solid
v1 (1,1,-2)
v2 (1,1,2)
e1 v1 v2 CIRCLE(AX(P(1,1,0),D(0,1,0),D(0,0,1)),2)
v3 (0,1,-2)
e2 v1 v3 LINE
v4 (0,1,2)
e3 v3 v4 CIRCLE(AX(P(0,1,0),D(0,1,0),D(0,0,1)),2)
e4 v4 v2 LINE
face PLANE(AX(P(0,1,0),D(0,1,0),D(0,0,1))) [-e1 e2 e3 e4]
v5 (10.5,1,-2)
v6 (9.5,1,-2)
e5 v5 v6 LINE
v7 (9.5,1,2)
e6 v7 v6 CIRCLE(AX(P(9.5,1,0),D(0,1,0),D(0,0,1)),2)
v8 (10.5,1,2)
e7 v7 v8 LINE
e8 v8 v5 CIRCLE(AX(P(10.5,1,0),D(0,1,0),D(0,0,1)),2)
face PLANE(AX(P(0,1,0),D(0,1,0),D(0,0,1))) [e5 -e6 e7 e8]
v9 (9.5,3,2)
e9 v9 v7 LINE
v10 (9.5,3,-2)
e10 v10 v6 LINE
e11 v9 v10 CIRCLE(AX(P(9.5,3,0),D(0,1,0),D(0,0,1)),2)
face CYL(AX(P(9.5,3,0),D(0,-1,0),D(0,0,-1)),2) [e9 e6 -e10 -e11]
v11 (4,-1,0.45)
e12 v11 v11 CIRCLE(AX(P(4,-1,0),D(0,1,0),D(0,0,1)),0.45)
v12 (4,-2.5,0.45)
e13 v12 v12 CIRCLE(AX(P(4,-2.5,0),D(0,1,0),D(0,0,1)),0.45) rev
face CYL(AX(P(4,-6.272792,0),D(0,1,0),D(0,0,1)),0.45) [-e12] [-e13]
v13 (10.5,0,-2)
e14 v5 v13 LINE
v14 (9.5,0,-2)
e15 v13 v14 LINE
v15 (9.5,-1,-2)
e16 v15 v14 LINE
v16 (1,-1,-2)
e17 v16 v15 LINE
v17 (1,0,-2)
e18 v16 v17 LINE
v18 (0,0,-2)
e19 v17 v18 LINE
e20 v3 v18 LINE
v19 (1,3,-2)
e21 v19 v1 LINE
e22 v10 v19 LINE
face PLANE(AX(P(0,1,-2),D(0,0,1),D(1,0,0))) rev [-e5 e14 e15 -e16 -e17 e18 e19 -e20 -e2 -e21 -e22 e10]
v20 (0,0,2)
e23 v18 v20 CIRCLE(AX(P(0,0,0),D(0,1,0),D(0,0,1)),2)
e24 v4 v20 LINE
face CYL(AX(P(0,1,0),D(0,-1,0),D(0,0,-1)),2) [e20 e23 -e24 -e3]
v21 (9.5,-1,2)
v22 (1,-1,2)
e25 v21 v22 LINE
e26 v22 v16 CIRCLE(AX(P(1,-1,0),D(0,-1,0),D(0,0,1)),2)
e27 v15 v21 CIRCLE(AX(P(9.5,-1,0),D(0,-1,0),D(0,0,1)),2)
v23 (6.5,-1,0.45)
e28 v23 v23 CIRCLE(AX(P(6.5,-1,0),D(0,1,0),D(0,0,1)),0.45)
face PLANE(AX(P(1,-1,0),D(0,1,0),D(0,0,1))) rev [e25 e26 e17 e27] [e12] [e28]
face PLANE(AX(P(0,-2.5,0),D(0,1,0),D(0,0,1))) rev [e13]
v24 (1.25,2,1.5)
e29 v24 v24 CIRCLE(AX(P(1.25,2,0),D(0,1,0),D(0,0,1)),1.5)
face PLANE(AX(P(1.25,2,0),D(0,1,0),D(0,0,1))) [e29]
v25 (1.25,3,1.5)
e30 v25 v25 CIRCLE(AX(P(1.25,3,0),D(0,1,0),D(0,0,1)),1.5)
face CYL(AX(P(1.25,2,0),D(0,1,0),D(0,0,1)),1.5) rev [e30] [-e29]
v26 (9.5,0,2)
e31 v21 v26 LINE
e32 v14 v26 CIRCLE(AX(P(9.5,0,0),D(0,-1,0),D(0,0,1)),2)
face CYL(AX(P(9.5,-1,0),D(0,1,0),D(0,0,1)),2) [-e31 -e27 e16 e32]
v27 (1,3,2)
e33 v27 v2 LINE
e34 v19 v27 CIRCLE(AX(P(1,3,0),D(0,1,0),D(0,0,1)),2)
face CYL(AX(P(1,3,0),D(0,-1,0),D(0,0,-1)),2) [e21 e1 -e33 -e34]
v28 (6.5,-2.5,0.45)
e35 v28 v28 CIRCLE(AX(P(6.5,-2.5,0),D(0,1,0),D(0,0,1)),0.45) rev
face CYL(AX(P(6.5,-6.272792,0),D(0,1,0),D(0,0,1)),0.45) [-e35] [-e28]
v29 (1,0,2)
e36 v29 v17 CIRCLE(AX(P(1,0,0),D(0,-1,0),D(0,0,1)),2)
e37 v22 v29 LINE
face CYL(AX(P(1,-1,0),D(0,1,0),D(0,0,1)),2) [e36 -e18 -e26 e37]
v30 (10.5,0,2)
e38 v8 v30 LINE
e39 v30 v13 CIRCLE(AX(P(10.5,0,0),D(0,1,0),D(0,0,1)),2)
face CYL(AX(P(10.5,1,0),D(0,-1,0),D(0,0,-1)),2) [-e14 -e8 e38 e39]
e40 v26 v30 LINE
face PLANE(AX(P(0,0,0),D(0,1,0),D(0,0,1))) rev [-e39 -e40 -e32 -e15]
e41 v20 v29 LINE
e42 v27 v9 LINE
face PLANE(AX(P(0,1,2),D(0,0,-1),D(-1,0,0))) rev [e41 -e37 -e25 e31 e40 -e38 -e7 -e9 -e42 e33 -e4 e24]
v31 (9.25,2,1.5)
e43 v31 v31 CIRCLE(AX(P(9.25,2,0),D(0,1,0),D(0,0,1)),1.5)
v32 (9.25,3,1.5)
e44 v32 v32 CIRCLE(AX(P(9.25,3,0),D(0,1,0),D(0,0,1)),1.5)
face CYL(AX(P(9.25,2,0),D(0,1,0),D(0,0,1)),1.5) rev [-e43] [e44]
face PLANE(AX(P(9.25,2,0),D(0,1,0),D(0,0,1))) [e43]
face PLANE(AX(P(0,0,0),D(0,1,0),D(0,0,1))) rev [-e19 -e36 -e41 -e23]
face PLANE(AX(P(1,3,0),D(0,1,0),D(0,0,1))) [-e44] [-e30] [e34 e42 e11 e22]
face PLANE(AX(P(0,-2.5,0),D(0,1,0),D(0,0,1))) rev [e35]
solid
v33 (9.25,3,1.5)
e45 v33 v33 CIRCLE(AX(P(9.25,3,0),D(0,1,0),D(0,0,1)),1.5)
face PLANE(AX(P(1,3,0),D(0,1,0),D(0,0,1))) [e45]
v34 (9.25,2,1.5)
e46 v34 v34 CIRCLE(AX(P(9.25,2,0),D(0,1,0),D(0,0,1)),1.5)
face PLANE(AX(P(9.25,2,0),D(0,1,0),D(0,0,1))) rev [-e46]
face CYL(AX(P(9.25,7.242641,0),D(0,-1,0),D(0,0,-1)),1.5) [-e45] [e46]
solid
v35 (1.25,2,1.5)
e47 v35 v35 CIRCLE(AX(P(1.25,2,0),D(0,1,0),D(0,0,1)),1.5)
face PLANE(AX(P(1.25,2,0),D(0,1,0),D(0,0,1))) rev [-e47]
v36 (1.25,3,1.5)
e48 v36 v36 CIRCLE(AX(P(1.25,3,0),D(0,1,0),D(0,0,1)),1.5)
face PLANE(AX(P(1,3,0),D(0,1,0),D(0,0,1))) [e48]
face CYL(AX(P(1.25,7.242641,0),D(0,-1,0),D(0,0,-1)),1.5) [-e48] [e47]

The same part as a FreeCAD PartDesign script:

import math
import FreeCAD as App
import Part
import Sketcher

V = App.Vector

doc = App.newDocument("Part")
body = doc.addObject("PartDesign::Body", "Body")

sketch1 = body.newObject("Sketcher::SketchObject", "Sketch")
sketch1.AttachmentSupport = (doc.getObject("XZ_Plane"), [""])
sketch1.MapMode = "FlatFace"
sketch1.addGeometry([
    Part.LineSegment(V(10.5, -2, 0), V(0, -2, 0)),
    Part.ArcOfCircle(Part.Circle(V(0, 0, 0), V(0, 0, 1), 2), math.radians(90), math.radians(270)),
    Part.LineSegment(V(0, 2, 0), V(10.5, 2, 0)),
    Part.ArcOfCircle(Part.Circle(V(10.5, 0, 0), V(0, 0, 1), 2), math.radians(-90), math.radians(90)),
], False)
sketch1.addConstraint([
    Sketcher.Constraint("Tangent", 0, 2, 1, 2),
    Sketcher.Constraint("Tangent", 1, 1, 2, 1),
    Sketcher.Constraint("Tangent", 2, 2, 3, 2),
    Sketcher.Constraint("Tangent", 3, 1, 0, 1),
    Sketcher.Constraint("Horizontal", 0),
    Sketcher.Constraint("Horizontal", 2),
    Sketcher.Constraint("Coincident", 1, 3, -1, 1),
    Sketcher.Constraint("Radius", 1, 2.0),
    Sketcher.Constraint("DistanceX", 0, 2, 0, 1, 10.5),
])
pad1 = body.newObject("PartDesign::Pad", "Pad")
pad1.Profile = sketch1
pad1.Length = 1
pad1.Reversed = True

sketch2 = body.newObject("Sketcher::SketchObject", "Sketch001")
sketch2.AttachmentSupport = (doc.getObject("XZ_Plane"), [""])
sketch2.MapMode = "FlatFace"
sketch2.AttachmentOffset = App.Placement(V(0, 0, -1), App.Rotation())
sketch2.addGeometry([
    Part.LineSegment(V(9.5, -2, 0), V(1, -2, 0)),
    Part.ArcOfCircle(Part.Circle(V(1, 0, 0), V(0, 0, 1), 2), math.radians(90), math.radians(270)),
    Part.LineSegment(V(1, 2, 0), V(9.5, 2, 0)),
    Part.ArcOfCircle(Part.Circle(V(9.5, 0, 0), V(0, 0, 1), 2), math.radians(-90), math.radians(90)),
], False)
sketch2.addConstraint([
    Sketcher.Constraint("Tangent", 0, 2, 1, 2),
    Sketcher.Constraint("Tangent", 1, 1, 2, 1),
    Sketcher.Constraint("Tangent", 2, 2, 3, 2),
    Sketcher.Constraint("Tangent", 3, 1, 0, 1),
    Sketcher.Constraint("Horizontal", 0),
    Sketcher.Constraint("Horizontal", 2),
    Sketcher.Constraint("PointOnObject", 1, 3, -1),
    Sketcher.Constraint("Radius", 1, 2.0),
    Sketcher.Constraint("DistanceX", 0, 2, 0, 1, 8.5),
    Sketcher.Constraint("DistanceX", -1, 1, 1, 3, 1.0),
])
pad2 = body.newObject("PartDesign::Pad", "Pad001")
pad2.Profile = sketch2
pad2.Length = 2
pad2.Reversed = True

sketch3 = body.newObject("Sketcher::SketchObject", "Sketch002")
sketch3.AttachmentSupport = (doc.getObject("XZ_Plane"), [""])
sketch3.MapMode = "FlatFace"
sketch3.AttachmentOffset = App.Placement(V(0, 0, -3), App.Rotation())
sketch3.addGeometry([
    Part.Circle(V(1.25, 0, 0), V(0, 0, 1), 1.5),
    Part.Circle(V(9.25, 0, 0), V(0, 0, 1), 1.5),
    Part.Circle(V(4, 0, 0), V(0, 0, 1), 0.45),
    Part.Circle(V(6.5, 0, 0), V(0, 0, 1), 0.45),
], False)
sketch3.addConstraint([
    Sketcher.Constraint("Equal", 0, 1),
    Sketcher.Constraint("Equal", 2, 3),
    Sketcher.Constraint("PointOnObject", 0, 3, -1),
    Sketcher.Constraint("PointOnObject", 1, 3, -1),
    Sketcher.Constraint("PointOnObject", 2, 3, -1),
    Sketcher.Constraint("PointOnObject", 3, 3, -1),
    Sketcher.Constraint("Diameter", 0, 3.0),
    Sketcher.Constraint("Diameter", 2, 0.9),
    Sketcher.Constraint("DistanceX", -1, 1, 2, 3, 4.0),
    Sketcher.Constraint("DistanceX", 0, 3, 1, 3, 8.0),
    Sketcher.Constraint("DistanceX", -1, 1, 3, 3, 6.5),
    Sketcher.Constraint("DistanceX", -1, 1, 0, 3, 1.25),
])
pocket1 = body.newObject("PartDesign::Pocket", "Pocket")
pocket1.Profile = sketch3
pocket1.Length = 1
pocket1.Reversed = True
body2 = doc.addObject("PartDesign::Body", "Body001")

sketch4 = body2.newObject("Sketcher::SketchObject", "Sketch003")
sketch4.AttachmentSupport = (doc.getObject("XZ_Plane001"), [""])
sketch4.MapMode = "FlatFace"
sketch4.AttachmentOffset = App.Placement(V(0, 0, -2), App.Rotation())
sketch4.addGeometry(Part.Circle(V(1.2, 0, 0), V(0, 0, 1), 1.5), False)
sketch4.addConstraint([
    Sketcher.Constraint("PointOnObject", 0, 3, -1),
    Sketcher.Constraint("Diameter", 0, 3.0),
    Sketcher.Constraint("DistanceX", -1, 1, 0, 3, 1.25),
])
pad3 = body2.newObject("PartDesign::Pad", "Pad002")
pad3.Profile = sketch4
pad3.Length = 1
pad3.Reversed = True
body3 = doc.addObject("PartDesign::Body", "Body002")

sketch5 = body3.newObject("Sketcher::SketchObject", "Sketch004")
sketch5.AttachmentSupport = (doc.getObject("XZ_Plane002"), [""])
sketch5.MapMode = "FlatFace"
sketch5.AttachmentOffset = App.Placement(V(0, 0, -2), App.Rotation())
sketch5.addGeometry(Part.Circle(V(9.2, 0, 0), V(0, 0, 1), 1.5), False)
sketch5.addConstraint([
    Sketcher.Constraint("PointOnObject", 0, 3, -1),
    Sketcher.Constraint("Diameter", 0, 3.0),
    Sketcher.Constraint("DistanceX", -1, 1, 0, 3, 9.25),
])
pad4 = body3.newObject("PartDesign::Pad", "Pad003")
pad4.Profile = sketch5
pad4.Length = 1
pad4.Reversed = True
body4 = doc.addObject("PartDesign::Body", "Body003")

sketch6 = body4.newObject("Sketcher::SketchObject", "Sketch005")
sketch6.AttachmentSupport = (doc.getObject("XZ_Plane003"), [""])
sketch6.MapMode = "FlatFace"
sketch6.AttachmentOffset = App.Placement(V(0, 0, -2), App.Rotation())
sketch6.addGeometry(Part.Circle(V(4, 0, 0), V(0, 0, 1), 0.45), False)
sketch6.addConstraint([
    Sketcher.Constraint("PointOnObject", 0, 3, -1),
    Sketcher.Constraint("Diameter", 0, 0.9),
    Sketcher.Constraint("DistanceX", -1, 1, 0, 3, 4.0),
])
pad5 = body4.newObject("PartDesign::Pad", "Pad004")
pad5.Profile = sketch6
pad5.Type = "TwoLengths"
pad5.Length = 1
pad5.Length2 = 4.5
pad5.Reversed = True
body5 = doc.addObject("PartDesign::Body", "Body004")

sketch7 = body5.newObject("Sketcher::SketchObject", "Sketch006")
sketch7.AttachmentSupport = (doc.getObject("XZ_Plane004"), [""])
sketch7.MapMode = "FlatFace"
sketch7.AttachmentOffset = App.Placement(V(0, 0, -2), App.Rotation())
sketch7.addGeometry(Part.Circle(V(6.5, 0, 0), V(0, 0, 1), 0.45), False)
sketch7.addConstraint([
    Sketcher.Constraint("PointOnObject", 0, 3, -1),
    Sketcher.Constraint("Diameter", 0, 0.9),
    Sketcher.Constraint("DistanceX", -1, 1, 0, 3, 6.5),
])
pad6 = body5.newObject("PartDesign::Pad", "Pad005")
pad6.Profile = sketch7
pad6.Type = "TwoLengths"
pad6.Length = 1
pad6.Length2 = 4.5
pad6.Reversed = True
doc.recompute()

boolean = body.newObject("PartDesign::Boolean", "Boolean")
boolean.Type = "Fuse"
boolean.addObjects([body4])
doc.recompute()

boolean2 = body.newObject("PartDesign::Boolean", "Boolean001")
boolean2.Type = "Fuse"
boolean2.addObjects([body5])

sketch8 = body.newObject("Sketcher::SketchObject", "Sketch007")
sketch8.AttachmentSupport = (doc.getObject("XZ_Plane"), [""])
sketch8.MapMode = "FlatFace"
sketch8.AttachmentOffset = App.Placement(V(0, 0, 1), App.Rotation())
sketch8.addGeometry([
    Part.LineSegment(V(9.5, 2, 0), V(1, 2, 0)),
    Part.ArcOfCircle(Part.Circle(V(1, 0, 0), V(0, 0, 1), 2), math.radians(90), math.radians(270)),
    Part.LineSegment(V(1, -2, 0), V(9.5, -2, 0)),
    Part.ArcOfCircle(Part.Circle(V(9.5, 0, 0), V(0, 0, 1), 2), math.radians(-90), math.radians(90)),
], False)
sketch8.addConstraint([
    Sketcher.Constraint("Tangent", 0, 2, 1, 1),
    Sketcher.Constraint("Tangent", 1, 2, 2, 1),
    Sketcher.Constraint("Tangent", 2, 2, 3, 1),
    Sketcher.Constraint("Tangent", 3, 2, 0, 1),
    Sketcher.Constraint("Horizontal", 0),
    Sketcher.Constraint("Horizontal", 2),
    Sketcher.Constraint("PointOnObject", 1, 3, -1),
    Sketcher.Constraint("Radius", 1, 2.0),
    Sketcher.Constraint("DistanceX", 0, 2, 0, 1, 8.5),
    Sketcher.Constraint("DistanceX", -1, 1, 1, 3, 1.0),
])
pad7 = body.newObject("PartDesign::Pad", "Pad006")
pad7.Profile = sketch8
pad7.Length = 1
pad7.Reversed = True

doc.recompute()
